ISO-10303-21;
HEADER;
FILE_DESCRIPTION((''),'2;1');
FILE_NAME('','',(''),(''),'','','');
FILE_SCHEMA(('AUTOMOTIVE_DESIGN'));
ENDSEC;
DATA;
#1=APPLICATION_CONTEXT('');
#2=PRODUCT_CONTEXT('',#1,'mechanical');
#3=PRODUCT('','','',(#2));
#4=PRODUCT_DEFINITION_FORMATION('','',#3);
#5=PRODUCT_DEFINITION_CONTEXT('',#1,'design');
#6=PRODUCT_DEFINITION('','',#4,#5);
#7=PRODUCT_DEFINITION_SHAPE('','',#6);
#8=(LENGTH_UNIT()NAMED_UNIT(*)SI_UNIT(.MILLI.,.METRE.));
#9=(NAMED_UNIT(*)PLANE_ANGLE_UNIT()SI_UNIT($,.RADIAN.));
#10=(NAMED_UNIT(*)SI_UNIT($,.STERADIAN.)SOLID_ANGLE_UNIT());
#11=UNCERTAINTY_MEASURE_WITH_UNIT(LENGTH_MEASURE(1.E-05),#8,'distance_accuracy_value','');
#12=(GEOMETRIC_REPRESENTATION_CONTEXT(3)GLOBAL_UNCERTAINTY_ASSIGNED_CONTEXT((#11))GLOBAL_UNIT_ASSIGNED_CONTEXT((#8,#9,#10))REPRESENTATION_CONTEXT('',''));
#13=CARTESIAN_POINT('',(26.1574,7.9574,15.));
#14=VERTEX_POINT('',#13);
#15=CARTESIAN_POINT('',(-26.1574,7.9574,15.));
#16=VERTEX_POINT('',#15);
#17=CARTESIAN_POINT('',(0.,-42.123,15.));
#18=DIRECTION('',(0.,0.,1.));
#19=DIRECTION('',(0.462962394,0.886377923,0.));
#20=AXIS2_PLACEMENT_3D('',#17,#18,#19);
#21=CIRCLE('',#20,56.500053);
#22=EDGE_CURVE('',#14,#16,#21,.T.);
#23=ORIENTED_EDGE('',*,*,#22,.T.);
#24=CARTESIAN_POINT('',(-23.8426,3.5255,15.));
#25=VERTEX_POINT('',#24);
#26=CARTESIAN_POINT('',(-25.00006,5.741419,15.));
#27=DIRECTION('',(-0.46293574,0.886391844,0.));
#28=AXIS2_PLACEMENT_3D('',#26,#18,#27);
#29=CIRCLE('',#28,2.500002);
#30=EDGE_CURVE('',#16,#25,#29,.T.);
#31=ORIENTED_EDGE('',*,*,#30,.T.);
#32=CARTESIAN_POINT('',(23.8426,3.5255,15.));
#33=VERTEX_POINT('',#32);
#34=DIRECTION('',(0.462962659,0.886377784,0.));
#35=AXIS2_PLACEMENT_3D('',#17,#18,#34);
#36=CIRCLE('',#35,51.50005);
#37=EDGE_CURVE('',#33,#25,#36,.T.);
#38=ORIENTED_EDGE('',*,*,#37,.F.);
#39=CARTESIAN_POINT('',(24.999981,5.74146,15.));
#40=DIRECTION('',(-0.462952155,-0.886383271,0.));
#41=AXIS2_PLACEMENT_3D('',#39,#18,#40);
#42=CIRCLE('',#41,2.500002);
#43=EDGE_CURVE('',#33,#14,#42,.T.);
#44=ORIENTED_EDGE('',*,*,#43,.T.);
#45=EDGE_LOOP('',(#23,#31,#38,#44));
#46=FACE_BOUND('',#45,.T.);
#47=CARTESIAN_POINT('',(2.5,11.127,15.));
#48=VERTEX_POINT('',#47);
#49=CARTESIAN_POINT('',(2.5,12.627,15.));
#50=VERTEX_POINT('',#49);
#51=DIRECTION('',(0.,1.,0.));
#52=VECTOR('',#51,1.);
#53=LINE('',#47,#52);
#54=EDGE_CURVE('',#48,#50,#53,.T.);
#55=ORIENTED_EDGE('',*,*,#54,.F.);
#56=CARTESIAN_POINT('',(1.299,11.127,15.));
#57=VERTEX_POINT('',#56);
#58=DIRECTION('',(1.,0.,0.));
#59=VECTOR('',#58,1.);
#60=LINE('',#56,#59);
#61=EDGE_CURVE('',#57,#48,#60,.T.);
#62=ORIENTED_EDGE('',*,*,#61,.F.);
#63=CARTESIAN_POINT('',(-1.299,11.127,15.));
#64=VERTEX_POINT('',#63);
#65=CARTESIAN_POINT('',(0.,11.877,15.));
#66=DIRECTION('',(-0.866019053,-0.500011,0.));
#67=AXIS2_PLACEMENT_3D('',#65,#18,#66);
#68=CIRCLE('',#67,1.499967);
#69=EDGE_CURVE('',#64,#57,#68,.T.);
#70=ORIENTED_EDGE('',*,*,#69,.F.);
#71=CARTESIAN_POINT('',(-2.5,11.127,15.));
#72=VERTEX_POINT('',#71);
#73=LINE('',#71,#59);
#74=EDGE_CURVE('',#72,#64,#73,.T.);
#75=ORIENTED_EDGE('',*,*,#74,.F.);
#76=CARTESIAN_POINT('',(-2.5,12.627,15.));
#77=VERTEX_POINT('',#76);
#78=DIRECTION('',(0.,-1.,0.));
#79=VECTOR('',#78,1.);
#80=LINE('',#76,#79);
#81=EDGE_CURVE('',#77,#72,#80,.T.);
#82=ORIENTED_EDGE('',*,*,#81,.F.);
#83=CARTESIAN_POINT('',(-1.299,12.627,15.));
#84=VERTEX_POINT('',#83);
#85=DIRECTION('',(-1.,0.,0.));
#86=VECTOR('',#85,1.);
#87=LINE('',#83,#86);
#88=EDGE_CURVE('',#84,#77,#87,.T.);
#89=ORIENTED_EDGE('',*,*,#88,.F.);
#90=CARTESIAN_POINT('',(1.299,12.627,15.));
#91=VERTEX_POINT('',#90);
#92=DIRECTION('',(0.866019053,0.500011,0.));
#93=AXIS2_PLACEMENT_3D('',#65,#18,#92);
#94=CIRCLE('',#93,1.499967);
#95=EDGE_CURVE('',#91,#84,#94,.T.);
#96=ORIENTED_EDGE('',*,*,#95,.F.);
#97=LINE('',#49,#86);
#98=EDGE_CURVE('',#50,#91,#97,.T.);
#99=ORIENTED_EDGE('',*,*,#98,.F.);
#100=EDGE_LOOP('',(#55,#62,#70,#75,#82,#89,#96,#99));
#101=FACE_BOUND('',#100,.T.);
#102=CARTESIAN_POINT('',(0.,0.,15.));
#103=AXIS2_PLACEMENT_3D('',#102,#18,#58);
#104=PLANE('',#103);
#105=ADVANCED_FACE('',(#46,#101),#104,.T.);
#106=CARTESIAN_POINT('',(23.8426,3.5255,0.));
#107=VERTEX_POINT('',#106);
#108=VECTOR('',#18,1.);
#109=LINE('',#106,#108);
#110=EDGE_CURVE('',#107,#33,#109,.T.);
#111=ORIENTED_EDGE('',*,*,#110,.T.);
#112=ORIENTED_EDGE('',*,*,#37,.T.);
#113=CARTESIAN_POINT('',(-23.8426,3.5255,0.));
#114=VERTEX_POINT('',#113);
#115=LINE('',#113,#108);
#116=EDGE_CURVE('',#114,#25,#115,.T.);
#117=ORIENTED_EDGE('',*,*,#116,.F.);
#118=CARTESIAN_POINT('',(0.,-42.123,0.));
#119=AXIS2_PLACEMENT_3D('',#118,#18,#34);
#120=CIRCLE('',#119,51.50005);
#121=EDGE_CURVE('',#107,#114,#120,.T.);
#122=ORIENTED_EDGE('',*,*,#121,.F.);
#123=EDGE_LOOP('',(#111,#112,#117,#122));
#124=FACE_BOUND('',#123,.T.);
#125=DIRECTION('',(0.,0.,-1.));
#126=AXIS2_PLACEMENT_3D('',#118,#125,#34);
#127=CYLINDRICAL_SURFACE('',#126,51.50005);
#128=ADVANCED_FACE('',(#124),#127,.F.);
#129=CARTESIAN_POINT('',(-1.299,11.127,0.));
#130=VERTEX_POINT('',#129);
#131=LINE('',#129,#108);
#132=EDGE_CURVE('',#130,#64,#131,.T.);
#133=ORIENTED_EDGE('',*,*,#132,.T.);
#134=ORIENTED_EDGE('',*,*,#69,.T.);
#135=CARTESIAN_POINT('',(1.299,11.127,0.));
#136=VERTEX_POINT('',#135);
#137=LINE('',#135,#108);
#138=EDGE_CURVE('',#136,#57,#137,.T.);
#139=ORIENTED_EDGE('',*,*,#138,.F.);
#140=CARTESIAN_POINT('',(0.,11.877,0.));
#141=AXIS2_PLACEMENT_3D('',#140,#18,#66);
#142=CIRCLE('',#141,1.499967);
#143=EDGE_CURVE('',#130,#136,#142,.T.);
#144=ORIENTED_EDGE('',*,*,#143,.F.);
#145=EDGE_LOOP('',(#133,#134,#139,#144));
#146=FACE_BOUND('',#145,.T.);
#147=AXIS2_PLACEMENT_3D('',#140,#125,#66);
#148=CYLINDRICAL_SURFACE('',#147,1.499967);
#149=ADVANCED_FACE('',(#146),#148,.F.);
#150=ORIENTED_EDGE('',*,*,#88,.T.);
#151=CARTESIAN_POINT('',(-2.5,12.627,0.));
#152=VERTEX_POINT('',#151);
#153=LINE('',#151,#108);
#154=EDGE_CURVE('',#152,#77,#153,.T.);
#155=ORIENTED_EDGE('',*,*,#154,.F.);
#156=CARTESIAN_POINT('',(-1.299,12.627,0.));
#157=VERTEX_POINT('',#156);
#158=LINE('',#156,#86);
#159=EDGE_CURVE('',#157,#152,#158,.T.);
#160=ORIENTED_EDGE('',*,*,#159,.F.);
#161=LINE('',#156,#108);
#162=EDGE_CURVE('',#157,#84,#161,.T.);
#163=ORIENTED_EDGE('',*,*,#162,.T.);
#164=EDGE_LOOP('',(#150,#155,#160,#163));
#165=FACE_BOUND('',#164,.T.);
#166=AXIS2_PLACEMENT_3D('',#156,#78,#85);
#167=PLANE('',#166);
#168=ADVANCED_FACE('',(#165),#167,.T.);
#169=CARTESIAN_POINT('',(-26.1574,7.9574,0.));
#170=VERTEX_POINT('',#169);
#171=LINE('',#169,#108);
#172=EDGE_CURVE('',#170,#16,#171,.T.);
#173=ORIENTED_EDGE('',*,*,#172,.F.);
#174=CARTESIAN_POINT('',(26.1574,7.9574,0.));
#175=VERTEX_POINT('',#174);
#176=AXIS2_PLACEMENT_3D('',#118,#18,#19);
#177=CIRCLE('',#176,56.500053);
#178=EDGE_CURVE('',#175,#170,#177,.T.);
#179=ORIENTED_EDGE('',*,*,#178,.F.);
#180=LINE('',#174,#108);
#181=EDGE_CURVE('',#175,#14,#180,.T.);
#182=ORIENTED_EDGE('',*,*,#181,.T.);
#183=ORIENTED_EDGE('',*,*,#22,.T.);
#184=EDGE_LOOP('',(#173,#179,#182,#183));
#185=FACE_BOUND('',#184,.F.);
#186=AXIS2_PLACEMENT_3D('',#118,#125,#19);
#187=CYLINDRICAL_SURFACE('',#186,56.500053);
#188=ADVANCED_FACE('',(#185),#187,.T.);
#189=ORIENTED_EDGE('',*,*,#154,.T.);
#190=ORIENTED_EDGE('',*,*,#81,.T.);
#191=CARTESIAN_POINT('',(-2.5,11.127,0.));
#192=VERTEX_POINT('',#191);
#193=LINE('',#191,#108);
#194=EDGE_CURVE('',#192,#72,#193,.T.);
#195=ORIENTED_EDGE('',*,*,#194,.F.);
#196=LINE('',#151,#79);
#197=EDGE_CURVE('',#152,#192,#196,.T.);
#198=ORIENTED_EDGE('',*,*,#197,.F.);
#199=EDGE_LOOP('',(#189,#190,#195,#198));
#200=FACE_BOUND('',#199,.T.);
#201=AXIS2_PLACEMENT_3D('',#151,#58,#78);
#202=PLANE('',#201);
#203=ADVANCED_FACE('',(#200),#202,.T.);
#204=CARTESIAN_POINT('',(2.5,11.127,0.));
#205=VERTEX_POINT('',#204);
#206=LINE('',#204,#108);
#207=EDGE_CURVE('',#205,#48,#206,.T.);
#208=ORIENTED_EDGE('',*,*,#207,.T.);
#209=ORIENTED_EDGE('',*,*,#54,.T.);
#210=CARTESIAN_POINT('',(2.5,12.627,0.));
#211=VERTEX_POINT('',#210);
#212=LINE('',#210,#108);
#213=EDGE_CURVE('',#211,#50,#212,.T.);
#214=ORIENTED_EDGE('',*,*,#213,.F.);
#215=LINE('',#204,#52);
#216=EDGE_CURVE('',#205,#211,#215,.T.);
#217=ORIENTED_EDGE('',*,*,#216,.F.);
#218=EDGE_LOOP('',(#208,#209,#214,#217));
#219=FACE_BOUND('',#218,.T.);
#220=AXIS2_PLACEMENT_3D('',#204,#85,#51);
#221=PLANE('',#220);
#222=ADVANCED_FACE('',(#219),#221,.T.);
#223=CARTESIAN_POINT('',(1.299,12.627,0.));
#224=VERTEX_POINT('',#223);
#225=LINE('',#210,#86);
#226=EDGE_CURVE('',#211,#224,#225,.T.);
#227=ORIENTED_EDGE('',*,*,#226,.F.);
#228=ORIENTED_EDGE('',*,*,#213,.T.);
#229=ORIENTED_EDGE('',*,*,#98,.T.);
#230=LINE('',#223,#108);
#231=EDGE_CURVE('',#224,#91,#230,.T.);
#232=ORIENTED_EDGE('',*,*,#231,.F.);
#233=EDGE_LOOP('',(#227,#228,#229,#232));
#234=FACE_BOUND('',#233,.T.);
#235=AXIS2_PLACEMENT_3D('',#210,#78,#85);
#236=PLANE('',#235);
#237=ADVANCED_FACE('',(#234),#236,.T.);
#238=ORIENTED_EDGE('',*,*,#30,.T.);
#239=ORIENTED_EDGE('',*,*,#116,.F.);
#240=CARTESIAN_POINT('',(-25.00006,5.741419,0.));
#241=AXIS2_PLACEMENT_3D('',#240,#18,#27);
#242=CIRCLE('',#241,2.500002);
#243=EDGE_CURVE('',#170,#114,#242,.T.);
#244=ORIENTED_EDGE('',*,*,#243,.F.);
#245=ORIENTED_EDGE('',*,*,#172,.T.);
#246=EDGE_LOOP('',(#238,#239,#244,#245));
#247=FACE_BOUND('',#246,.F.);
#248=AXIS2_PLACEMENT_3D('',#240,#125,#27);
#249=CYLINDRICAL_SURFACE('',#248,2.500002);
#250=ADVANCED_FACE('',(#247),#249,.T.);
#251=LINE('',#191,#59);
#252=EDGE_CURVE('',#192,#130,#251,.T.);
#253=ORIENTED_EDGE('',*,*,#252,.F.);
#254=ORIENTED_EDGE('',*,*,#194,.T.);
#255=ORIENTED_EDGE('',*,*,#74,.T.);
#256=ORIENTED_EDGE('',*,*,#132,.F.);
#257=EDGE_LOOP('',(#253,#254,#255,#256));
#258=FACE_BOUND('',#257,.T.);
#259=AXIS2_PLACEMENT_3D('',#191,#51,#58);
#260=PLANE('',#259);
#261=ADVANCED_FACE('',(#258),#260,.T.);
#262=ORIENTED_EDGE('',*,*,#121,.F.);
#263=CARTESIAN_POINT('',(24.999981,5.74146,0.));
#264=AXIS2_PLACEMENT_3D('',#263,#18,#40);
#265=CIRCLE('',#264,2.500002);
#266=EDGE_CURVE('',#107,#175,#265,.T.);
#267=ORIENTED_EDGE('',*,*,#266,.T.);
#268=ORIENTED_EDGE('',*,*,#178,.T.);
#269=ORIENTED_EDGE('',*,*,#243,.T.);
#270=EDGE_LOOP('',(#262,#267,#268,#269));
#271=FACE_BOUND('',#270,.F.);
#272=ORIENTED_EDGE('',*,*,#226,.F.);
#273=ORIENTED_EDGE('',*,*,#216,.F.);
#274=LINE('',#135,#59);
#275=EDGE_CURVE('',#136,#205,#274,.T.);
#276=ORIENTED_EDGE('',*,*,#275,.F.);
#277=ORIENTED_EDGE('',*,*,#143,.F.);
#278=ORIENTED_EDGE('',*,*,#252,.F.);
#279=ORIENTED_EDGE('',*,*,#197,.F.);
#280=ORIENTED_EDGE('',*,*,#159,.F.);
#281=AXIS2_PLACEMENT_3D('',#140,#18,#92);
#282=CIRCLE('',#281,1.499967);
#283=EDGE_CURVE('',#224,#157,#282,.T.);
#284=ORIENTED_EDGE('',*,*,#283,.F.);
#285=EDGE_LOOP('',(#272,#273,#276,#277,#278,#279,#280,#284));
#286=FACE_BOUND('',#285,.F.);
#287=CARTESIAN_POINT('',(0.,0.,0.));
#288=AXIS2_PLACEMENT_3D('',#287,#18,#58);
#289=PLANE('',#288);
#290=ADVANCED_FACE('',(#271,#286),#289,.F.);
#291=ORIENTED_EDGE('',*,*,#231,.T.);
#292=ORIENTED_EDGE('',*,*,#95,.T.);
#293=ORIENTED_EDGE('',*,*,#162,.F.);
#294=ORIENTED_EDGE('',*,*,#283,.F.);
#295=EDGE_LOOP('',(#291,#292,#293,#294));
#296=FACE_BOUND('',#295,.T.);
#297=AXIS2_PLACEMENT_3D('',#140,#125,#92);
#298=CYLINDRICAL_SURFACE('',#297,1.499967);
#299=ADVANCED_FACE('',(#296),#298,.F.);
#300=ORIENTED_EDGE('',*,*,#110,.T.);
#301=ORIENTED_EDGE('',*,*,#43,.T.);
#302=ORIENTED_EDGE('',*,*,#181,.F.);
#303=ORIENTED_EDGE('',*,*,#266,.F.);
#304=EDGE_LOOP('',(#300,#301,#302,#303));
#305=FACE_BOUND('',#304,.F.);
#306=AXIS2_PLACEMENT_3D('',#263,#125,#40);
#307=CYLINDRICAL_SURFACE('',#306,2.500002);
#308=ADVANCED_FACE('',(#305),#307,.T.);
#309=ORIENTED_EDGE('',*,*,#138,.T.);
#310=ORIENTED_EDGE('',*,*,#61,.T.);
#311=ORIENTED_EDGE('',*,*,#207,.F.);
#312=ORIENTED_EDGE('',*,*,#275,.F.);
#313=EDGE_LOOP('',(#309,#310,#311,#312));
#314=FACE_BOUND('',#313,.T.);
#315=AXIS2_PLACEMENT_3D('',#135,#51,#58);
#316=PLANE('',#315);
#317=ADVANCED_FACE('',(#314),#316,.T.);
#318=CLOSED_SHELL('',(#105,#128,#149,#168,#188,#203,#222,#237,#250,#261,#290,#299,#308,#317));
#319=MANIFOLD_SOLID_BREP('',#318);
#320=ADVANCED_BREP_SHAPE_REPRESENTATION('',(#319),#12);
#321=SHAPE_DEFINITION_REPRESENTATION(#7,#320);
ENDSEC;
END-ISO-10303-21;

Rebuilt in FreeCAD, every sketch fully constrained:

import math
import FreeCAD as App
import Part
import Sketcher

doc = App.newDocument("Part")
body = doc.addObject("PartDesign::Body", "Body")

# Sketch on XY plane
sketch1 = body.newObject("Sketcher::SketchObject", "Sketch")
sketch1.AttachmentSupport = (doc.getObject("XY_Plane"), [""])
sketch1.MapMode = "FlatFace"
sketch1.addGeometry([
    Part.ArcOfCircle(Part.Circle(App.Vector(25, 5.7, 0), App.Vector(0, 0, 1), 2.5), math.radians(-118), math.radians(62)),  # 0
    Part.ArcOfCircle(Part.Circle(App.Vector(0, -42.1, 0), App.Vector(0, 0, 1), 56.5), math.radians(62), math.radians(118)),  # 1
    Part.ArcOfCircle(Part.Circle(App.Vector(-25, 5.7, 0), App.Vector(0, 0, 1), 2.5), math.radians(118), math.radians(298)),  # 2
    Part.ArcOfCircle(Part.Circle(App.Vector(0, -42.1, 0), App.Vector(0, 0, 1), 51.5), math.radians(62), math.radians(118)),  # 3
    Part.LineSegment(App.Vector(2.5, 12.6, 0), App.Vector(2.5, 11.1, 0)),  # 4
    Part.LineSegment(App.Vector(2.5, 11.1, 0), App.Vector(1.3, 11.1, 0)),  # 5
    Part.ArcOfCircle(Part.Circle(App.Vector(0, 11.9, 0), App.Vector(0, 0, 1), 1.5), math.radians(-150), math.radians(-30)),  # 6
    Part.LineSegment(App.Vector(-1.3, 11.1, 0), App.Vector(-2.5, 11.1, 0)),  # 7
    Part.LineSegment(App.Vector(-2.5, 11.1, 0), App.Vector(-2.5, 12.6, 0)),  # 8
    Part.LineSegment(App.Vector(-2.5, 12.6, 0), App.Vector(-1.3, 12.6, 0)),  # 9
    Part.ArcOfCircle(Part.Circle(App.Vector(0, 11.9, 0), App.Vector(0, 0, 1), 1.5), math.radians(30), math.radians(150)),  # 10
    Part.LineSegment(App.Vector(1.3, 12.6, 0), App.Vector(2.5, 12.6, 0)),  # 11
], False)
sketch1.addConstraint([
    Sketcher.Constraint("Tangent", 0, 2, 1, 1),
    Sketcher.Constraint("Tangent", 1, 2, 2, 1),
    Sketcher.Constraint("Tangent", 2, 2, 3, 2),
    Sketcher.Constraint("Tangent", 3, 1, 0, 1),
    Sketcher.Constraint("Coincident", 4, 2, 5, 1),
    Sketcher.Constraint("Coincident", 5, 2, 6, 2),
    Sketcher.Constraint("Coincident", 6, 1, 7, 1),
    Sketcher.Constraint("Coincident", 7, 2, 8, 1),
    Sketcher.Constraint("Coincident", 8, 2, 9, 1),
    Sketcher.Constraint("Coincident", 9, 2, 10, 2),
    Sketcher.Constraint("Coincident", 10, 1, 11, 1),
    Sketcher.Constraint("Coincident", 11, 2, 4, 1),
    Sketcher.Constraint("Vertical", 4),
    Sketcher.Constraint("Horizontal", 5),
    Sketcher.Constraint("Horizontal", 7),
    Sketcher.Constraint("Vertical", 8),
    Sketcher.Constraint("Horizontal", 9),
    Sketcher.Constraint("Horizontal", 11),
    Sketcher.Constraint("Coincident", 3, 3, 1, 3),
    Sketcher.Constraint("Coincident", 10, 3, 6, 3),
    Sketcher.Constraint("Equal", 6, 10),
    Sketcher.Constraint("Symmetric", 0, 3, 2, 3, -2),
    Sketcher.Constraint("Symmetric", 5, 2, 6, 1, -2),
    Sketcher.Constraint("Symmetric", 8, 2, 11, 2, -2),
    Sketcher.Constraint("Vertical", 6, 1, 9, 2),
    Sketcher.Constraint("Radius", 0, 2.5),
    Sketcher.Constraint("Radius", 1, 56.5),
    Sketcher.Constraint("Radius", 6, 1.5),
    Sketcher.Constraint("DistanceY", 4, 2, 4, 1, 1.5),
    Sketcher.Constraint("DistanceX", 2, 3, 0, 3, 50.0),
    Sketcher.Constraint("DistanceY", 1, 3, 6, 3, 54.0),
    Sketcher.Constraint("DistanceX", 7, 2, 4, 2, 5.0),
    Sketcher.Constraint("DistanceY", 1, 3, -1, 1, 42.123),
])
pad1 = body.newObject("PartDesign::Pad", "Pad")
pad1.Profile = sketch1
pad1.Length = 15

doc.recompute()
